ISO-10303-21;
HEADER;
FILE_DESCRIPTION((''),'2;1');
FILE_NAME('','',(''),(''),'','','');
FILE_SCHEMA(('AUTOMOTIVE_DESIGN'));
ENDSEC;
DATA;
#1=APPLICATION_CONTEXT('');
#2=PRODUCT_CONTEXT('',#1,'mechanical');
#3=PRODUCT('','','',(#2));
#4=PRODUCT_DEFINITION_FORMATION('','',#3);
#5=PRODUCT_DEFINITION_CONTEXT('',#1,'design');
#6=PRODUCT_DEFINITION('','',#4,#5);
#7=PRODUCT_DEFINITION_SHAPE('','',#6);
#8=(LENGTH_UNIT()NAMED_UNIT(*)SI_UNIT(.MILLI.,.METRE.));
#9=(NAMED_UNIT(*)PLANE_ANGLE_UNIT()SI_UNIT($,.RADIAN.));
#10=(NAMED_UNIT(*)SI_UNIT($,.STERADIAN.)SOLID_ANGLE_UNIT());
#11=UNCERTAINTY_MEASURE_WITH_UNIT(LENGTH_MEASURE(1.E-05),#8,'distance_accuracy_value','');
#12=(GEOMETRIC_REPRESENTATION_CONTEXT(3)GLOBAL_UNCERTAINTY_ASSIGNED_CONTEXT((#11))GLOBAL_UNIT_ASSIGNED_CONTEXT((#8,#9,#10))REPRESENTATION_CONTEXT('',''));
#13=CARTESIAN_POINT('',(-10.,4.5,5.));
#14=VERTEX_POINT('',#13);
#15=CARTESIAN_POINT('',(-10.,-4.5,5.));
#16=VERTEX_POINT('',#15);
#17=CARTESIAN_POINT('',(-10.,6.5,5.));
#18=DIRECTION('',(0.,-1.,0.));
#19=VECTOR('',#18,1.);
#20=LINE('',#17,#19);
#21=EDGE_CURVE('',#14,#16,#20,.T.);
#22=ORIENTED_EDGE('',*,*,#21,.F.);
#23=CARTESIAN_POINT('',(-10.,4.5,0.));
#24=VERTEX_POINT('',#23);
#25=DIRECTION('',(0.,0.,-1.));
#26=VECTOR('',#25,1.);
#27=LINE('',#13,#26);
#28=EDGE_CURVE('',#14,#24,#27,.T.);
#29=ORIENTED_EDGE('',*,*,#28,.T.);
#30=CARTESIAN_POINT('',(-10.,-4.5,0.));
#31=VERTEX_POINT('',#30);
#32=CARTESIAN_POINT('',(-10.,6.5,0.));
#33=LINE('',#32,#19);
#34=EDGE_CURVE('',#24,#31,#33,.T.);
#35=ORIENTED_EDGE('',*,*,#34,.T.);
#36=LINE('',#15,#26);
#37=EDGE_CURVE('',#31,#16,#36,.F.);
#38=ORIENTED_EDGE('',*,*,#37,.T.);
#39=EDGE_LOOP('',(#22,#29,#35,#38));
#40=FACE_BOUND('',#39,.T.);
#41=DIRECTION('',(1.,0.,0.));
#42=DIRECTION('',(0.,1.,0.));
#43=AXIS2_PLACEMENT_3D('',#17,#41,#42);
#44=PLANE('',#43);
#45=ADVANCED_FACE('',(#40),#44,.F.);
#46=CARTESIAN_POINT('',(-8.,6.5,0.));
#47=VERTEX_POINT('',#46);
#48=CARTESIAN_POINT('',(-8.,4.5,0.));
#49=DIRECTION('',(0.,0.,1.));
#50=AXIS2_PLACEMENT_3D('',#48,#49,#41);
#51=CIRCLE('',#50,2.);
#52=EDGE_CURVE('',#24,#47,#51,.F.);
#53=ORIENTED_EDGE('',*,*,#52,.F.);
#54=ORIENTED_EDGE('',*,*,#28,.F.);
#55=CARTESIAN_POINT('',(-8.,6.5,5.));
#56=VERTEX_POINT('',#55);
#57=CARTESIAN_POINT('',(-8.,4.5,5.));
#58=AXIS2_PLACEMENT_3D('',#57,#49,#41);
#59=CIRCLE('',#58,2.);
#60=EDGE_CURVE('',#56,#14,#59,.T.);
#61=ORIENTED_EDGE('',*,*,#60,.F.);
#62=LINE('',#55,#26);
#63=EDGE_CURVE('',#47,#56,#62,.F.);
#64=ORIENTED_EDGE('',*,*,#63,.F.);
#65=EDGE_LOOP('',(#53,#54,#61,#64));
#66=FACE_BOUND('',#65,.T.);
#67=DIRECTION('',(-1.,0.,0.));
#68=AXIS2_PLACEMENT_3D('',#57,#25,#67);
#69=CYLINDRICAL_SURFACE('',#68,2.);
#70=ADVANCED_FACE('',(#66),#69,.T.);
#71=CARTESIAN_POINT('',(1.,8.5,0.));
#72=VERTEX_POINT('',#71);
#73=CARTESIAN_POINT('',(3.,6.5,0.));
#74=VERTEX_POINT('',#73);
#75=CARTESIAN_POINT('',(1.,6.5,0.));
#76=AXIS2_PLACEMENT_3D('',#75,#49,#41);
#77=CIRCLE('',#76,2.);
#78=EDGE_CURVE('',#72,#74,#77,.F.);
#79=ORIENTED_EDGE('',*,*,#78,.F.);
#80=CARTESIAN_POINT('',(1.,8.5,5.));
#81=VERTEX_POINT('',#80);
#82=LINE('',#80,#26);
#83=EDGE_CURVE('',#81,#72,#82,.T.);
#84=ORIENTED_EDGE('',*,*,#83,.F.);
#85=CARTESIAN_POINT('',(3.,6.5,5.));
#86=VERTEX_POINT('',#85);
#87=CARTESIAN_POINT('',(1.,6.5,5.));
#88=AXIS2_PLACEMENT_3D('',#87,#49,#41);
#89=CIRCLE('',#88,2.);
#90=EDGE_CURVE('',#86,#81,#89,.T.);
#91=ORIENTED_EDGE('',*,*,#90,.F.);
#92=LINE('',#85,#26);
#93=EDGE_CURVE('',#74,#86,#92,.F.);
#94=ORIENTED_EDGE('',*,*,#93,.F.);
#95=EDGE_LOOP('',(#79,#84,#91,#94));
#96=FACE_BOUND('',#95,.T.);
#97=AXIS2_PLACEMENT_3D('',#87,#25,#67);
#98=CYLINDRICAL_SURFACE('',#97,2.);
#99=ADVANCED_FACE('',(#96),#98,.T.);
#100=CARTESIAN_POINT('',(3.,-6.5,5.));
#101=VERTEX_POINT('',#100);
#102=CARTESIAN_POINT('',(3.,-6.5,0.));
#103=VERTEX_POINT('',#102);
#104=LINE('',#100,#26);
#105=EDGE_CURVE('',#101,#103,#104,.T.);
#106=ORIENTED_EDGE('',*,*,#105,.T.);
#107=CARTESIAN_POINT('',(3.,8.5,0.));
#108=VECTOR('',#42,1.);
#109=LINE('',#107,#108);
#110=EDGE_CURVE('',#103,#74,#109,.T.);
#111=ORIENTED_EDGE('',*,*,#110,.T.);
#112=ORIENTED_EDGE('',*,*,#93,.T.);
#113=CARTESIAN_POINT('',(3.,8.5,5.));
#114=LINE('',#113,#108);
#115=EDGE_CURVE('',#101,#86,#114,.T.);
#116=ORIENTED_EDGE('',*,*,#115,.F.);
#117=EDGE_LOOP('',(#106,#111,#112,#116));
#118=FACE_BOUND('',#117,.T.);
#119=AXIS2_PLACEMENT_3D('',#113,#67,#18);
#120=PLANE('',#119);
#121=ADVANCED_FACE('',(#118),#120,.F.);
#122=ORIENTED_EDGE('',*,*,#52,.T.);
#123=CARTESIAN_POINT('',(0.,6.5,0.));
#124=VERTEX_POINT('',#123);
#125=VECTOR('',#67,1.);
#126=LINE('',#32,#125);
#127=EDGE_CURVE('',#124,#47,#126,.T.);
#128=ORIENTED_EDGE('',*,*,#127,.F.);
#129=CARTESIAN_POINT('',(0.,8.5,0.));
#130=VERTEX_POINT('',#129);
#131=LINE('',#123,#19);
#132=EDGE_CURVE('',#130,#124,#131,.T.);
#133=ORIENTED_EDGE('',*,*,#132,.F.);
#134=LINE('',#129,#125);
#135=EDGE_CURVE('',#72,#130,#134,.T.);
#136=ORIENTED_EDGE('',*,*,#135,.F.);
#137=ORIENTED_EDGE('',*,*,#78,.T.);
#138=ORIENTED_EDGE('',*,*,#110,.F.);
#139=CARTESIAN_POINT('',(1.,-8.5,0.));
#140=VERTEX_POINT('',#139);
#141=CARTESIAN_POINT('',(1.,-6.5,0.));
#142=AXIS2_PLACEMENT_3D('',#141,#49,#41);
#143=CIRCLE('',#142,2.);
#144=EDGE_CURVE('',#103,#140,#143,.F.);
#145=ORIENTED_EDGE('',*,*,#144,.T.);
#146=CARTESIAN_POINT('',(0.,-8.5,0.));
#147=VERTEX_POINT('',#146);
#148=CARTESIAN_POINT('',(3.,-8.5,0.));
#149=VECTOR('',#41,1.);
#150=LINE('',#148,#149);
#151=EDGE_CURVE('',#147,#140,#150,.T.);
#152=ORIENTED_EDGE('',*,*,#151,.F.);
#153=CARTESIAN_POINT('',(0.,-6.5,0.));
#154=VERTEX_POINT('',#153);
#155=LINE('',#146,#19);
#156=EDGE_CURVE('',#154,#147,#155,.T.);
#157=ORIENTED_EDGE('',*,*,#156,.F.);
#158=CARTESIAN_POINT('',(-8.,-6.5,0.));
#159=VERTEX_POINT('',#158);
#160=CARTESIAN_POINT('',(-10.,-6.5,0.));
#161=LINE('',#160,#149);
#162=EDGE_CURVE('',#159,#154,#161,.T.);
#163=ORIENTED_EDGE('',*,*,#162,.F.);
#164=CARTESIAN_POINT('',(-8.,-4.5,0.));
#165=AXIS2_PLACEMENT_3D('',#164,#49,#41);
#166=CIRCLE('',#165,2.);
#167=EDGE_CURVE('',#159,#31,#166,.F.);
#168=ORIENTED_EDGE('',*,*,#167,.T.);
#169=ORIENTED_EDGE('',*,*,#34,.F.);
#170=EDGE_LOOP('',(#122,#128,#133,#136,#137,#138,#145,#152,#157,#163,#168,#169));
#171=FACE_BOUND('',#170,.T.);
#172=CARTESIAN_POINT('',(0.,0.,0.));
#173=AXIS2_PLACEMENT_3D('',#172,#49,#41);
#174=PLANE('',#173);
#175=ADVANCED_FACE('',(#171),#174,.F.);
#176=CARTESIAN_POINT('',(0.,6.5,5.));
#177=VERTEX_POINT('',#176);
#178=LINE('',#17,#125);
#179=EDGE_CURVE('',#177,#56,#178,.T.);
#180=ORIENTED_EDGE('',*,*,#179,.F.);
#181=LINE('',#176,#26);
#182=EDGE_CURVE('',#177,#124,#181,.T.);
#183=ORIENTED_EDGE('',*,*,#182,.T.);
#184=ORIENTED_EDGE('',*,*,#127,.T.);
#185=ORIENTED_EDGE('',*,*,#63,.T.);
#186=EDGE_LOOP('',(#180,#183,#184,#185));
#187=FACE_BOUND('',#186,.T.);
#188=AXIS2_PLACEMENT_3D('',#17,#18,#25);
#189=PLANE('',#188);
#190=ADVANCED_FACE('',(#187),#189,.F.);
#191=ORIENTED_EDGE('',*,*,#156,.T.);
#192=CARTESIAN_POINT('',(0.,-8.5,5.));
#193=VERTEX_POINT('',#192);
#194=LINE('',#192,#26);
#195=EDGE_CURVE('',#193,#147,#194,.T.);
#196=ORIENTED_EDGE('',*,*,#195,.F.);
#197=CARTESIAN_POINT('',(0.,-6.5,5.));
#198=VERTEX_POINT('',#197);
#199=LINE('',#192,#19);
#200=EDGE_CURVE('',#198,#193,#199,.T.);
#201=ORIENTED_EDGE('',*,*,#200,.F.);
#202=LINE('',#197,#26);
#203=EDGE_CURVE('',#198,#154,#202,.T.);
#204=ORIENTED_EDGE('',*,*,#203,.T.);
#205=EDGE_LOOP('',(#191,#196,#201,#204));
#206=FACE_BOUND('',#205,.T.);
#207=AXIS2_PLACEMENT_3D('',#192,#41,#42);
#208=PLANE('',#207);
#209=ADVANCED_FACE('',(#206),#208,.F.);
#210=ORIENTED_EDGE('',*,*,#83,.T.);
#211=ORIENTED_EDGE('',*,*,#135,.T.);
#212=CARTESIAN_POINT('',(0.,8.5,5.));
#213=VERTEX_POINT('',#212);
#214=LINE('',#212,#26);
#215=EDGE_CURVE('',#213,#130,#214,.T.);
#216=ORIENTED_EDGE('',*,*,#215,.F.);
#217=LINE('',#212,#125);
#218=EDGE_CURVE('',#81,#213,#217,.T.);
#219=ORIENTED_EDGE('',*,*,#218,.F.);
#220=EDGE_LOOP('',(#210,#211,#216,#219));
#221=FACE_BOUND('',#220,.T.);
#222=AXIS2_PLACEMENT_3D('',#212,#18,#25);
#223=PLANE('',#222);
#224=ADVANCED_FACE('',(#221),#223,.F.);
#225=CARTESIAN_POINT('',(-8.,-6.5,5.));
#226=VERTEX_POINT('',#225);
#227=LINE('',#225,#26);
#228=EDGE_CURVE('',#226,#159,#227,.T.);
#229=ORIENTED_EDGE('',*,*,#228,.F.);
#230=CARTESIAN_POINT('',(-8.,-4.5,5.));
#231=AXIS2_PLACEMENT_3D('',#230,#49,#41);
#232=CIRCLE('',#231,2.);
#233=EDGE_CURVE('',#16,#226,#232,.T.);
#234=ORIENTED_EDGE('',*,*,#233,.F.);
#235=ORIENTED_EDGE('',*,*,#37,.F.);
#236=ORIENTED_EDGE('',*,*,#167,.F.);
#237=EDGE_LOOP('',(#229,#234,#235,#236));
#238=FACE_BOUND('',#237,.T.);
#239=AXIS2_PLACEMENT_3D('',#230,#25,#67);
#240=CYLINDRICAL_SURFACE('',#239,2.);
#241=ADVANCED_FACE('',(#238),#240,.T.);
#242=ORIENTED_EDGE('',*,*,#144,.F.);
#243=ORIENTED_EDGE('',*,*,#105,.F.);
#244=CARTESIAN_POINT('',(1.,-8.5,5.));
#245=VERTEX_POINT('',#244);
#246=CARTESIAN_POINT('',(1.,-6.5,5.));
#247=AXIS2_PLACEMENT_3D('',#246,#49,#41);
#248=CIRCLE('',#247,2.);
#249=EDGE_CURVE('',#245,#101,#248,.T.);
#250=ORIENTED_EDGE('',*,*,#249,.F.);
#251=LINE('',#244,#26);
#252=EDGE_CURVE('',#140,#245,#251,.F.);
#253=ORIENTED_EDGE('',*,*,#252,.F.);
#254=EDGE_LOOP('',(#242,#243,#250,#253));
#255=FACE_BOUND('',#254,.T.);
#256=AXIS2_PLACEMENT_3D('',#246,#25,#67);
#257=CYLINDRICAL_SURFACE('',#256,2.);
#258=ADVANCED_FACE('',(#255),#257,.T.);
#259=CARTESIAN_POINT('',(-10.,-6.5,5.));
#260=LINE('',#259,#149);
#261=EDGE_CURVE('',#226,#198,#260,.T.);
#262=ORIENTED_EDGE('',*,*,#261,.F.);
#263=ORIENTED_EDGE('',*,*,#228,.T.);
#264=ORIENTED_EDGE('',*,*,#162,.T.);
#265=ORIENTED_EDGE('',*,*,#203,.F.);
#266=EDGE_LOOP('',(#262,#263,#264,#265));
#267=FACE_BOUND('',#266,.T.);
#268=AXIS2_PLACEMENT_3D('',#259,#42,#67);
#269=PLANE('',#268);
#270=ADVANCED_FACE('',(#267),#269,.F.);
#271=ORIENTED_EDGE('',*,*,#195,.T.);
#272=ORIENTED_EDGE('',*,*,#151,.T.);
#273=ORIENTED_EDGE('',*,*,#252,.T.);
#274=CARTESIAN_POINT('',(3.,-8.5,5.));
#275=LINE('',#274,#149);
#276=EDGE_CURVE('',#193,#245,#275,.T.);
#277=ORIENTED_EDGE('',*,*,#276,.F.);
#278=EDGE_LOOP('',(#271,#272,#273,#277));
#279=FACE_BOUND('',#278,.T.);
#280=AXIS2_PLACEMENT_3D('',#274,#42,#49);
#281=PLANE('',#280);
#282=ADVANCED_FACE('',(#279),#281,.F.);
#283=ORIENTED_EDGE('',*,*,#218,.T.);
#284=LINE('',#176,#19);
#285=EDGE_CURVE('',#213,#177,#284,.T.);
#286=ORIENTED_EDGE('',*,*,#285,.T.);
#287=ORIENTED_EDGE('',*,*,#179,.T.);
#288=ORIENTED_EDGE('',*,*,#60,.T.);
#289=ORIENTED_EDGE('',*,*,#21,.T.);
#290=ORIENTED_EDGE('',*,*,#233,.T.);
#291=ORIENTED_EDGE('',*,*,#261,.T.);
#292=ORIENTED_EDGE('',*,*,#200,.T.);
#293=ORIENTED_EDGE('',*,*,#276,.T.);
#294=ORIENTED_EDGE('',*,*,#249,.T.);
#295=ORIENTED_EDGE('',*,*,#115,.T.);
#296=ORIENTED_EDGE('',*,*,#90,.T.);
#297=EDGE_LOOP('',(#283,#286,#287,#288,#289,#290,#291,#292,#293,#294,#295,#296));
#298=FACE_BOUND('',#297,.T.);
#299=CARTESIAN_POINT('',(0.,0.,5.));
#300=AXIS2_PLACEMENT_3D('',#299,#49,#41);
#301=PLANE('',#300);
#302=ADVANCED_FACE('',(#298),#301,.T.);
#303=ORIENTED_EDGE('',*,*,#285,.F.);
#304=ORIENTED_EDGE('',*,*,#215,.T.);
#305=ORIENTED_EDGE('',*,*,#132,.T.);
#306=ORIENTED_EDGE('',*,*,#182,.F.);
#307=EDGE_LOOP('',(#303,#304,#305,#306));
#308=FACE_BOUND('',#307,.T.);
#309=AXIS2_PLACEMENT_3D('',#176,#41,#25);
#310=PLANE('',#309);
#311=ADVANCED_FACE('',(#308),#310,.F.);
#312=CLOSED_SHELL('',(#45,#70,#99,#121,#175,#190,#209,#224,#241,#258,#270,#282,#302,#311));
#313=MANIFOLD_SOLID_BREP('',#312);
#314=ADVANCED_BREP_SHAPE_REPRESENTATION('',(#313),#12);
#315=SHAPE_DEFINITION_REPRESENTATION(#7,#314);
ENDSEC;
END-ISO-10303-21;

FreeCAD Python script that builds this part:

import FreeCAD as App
import Part
import Sketcher

V = App.Vector


def edges_at(feature, points):
    """Names of the edges that pass closest to the given points."""
    edges = feature.Shape.Edges
    near = lambda p: min(range(len(edges)), key=lambda i: edges[i].distToShape(Part.Vertex(*p))[0])
    return sorted({f"Edge{near(p) + 1}" for p in points})

doc = App.newDocument("Part")
body = doc.addObject("PartDesign::Body", "Body")

# Sketch on XY plane
sketch1 = doc.addObject("Sketcher::SketchObject", "Sketch")
body.addObject(sketch1)
sketch1.AttachmentSupport = (doc.XY_Plane, [""])
sketch1.MapMode = "FlatFace"
sketch1.addGeometry([
    Part.LineSegment(V(0, 8.5, 0), V(0, 6.5, 0)),  # 0
    Part.LineSegment(V(0, 6.5, 0), V(-10, 6.5, 0)),  # 1
    Part.LineSegment(V(-10, 6.5, 0), V(-10, -6.5, 0)),  # 2
    Part.LineSegment(V(-10, -6.5, 0), V(0, -6.5, 0)),  # 3
    Part.LineSegment(V(0, -6.5, 0), V(0, -8.5, 0)),  # 4
    Part.LineSegment(V(0, -8.5, 0), V(3, -8.5, 0)),  # 5
    Part.LineSegment(V(3, -8.5, 0), V(3, 8.5, 0)),  # 6
    Part.LineSegment(V(3, 8.5, 0), V(0, 8.5, 0)),  # 7
], False)
sketch1.addConstraint([
    Sketcher.Constraint("Coincident", 0, 2, 1, 1),
    Sketcher.Constraint("Coincident", 1, 2, 2, 1),
    Sketcher.Constraint("Coincident", 2, 2, 3, 1),
    Sketcher.Constraint("Coincident", 3, 2, 4, 1),
    Sketcher.Constraint("Coincident", 4, 2, 5, 1),
    Sketcher.Constraint("Coincident", 5, 2, 6, 1),
    Sketcher.Constraint("Coincident", 6, 2, 7, 1),
    Sketcher.Constraint("Coincident", 7, 2, 0, 1),
    Sketcher.Constraint("Vertical", 0),
    Sketcher.Constraint("Horizontal", 1),
    Sketcher.Constraint("Vertical", 2),
    Sketcher.Constraint("Horizontal", 3),
    Sketcher.Constraint("Vertical", 4),
    Sketcher.Constraint("Horizontal", 5),
    Sketcher.Constraint("Vertical", 6),
    Sketcher.Constraint("Horizontal", 7),
    Sketcher.Constraint("Symmetric", 0, 2, 3, 2, -1, 1),
    Sketcher.Constraint("Symmetric", 4, 2, 7, 2, -1),
    Sketcher.Constraint("DistanceX", 1, 2, 1, 1, 10.0),
    Sketcher.Constraint("DistanceX", 5, 1, 5, 2, 3.0),
    Sketcher.Constraint("DistanceY", 0, 2, 0, 1, 2.0),
    Sketcher.Constraint("DistanceY", 2, 2, 2, 1, 13.0),
])
pad1 = doc.addObject("PartDesign::Pad", "Pad")
body.addObject(pad1)
pad1.Profile = sketch1
pad1.Length = 5
doc.recompute()

fillet = doc.addObject("PartDesign::Fillet", "Fillet")
body.addObject(fillet)
fillet.Base = (pad1, edges_at(pad1, [
    (-10, 6.5, 2.5),
    (3, 8.5, 2.5),
    (3, -8.5, 2.5),
    (-10, -6.5, 2.5),
]))
fillet.Radius = 2

doc.recompute()
